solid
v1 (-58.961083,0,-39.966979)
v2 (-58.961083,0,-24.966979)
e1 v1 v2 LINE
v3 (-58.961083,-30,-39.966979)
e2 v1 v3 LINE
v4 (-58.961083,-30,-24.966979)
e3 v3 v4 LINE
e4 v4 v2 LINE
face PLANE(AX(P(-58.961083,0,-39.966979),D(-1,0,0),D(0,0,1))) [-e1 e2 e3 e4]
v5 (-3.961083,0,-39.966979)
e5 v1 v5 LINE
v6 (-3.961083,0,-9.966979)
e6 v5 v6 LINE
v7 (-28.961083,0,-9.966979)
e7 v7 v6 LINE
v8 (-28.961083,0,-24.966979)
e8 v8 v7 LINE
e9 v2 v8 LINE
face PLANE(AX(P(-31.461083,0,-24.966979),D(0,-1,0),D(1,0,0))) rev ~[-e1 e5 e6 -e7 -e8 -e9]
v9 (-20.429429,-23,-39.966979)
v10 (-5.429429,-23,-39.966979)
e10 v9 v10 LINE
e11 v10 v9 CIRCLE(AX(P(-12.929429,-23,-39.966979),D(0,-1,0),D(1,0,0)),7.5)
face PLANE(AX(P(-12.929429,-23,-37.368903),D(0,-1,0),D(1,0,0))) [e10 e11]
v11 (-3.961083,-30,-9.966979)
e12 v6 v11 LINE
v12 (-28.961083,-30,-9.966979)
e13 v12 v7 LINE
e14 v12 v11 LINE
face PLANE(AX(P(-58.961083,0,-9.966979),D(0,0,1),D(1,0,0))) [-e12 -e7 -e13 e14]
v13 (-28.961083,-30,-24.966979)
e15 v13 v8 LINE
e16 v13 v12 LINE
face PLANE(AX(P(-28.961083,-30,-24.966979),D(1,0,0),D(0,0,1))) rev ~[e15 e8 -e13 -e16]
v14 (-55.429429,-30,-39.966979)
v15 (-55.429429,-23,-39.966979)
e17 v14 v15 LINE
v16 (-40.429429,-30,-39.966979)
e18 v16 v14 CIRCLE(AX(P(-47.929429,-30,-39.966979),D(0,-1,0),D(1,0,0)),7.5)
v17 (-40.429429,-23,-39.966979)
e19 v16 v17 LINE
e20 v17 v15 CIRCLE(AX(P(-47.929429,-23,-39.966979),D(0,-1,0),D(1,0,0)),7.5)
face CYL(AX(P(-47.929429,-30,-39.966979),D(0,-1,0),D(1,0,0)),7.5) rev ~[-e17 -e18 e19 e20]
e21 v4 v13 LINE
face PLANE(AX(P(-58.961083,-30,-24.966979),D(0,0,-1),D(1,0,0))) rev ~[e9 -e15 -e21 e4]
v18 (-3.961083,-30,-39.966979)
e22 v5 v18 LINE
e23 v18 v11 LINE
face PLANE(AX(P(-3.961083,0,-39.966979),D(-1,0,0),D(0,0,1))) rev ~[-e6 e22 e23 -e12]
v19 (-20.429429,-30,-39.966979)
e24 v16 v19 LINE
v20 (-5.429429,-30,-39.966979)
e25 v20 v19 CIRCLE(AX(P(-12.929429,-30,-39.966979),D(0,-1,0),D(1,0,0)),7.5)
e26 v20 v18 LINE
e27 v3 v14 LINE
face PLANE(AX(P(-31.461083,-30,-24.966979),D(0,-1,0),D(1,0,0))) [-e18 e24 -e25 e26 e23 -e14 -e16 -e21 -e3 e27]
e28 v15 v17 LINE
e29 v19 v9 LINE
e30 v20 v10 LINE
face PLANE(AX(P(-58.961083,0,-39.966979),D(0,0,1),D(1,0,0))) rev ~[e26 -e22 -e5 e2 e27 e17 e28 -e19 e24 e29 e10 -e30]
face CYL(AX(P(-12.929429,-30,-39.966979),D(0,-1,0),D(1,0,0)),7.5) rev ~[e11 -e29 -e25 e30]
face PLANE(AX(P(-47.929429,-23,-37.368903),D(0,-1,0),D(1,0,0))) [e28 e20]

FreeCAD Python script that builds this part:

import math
import FreeCAD as App
import Part
import Sketcher
from FreeCAD import Vector


def add_polygon(sketch, points):
    """Adds a closed chain of lines whose ends are joined by coincident constraints."""
    first, n = sketch.GeometryCount, len(points)
    for a, b in zip(points, points[1:] + points[:1]):
        sketch.addGeometry(Part.LineSegment(App.Vector(*a, 0), App.Vector(*b, 0)), False)
    for i in range(n):
        sketch.addConstraint(Sketcher.Constraint("Coincident", first + i, 2, first + (i + 1) % n, 1))

doc = App.newDocument("Part")
body = doc.addObject("PartDesign::Body", "Body")

sketch1 = body.newObject("Sketcher::SketchObject", "Sketch")
sketch1.AttachmentSupport = (doc.getObject("XZ_Plane"), [""])
sketch1.MapMode = "FlatFace"
add_polygon(sketch1, [(-59, -10), (-59, -40), (-4, -40), (-4, -10)])
sketch1.addConstraint([
    Sketcher.Constraint("Vertical", 0),
    Sketcher.Constraint("Horizontal", 1),
    Sketcher.Constraint("Vertical", 2),
    Sketcher.Constraint("Horizontal", 3),
    Sketcher.Constraint("DistanceX", 1, 1, 1, 2, 55.0),
    Sketcher.Constraint("DistanceY", 0, 2, 0, 1, 30.0),
    Sketcher.Constraint("DistanceY", 0, 2, -1, 1, 39.966979),
    Sketcher.Constraint("DistanceX", 0, 2, -1, 1, 58.961083),
])
pad1 = body.newObject("PartDesign::Pad", "Pad")
pad1.Profile = sketch1
pad1.Length = 30

sketch2 = body.newObject("Sketcher::SketchObject", "Sketch001")
sketch2.AttachmentSupport = (doc.getObject("XZ_Plane"), [""])
sketch2.MapMode = "FlatFace"
sketch2.AttachmentOffset = App.Placement(Vector(0, 0, 30), App.Rotation())
add_polygon(sketch2, [(-59, -10), (-59, -25), (-29, -25), (-29, -10)])
sketch2.addConstraint([
    Sketcher.Constraint("Vertical", 0),
    Sketcher.Constraint("Horizontal", 1),
    Sketcher.Constraint("Vertical", 2),
    Sketcher.Constraint("Horizontal", 3),
    Sketcher.Constraint("DistanceX", 1, 1, 1, 2, 30.0),
    Sketcher.Constraint("DistanceY", 0, 2, 0, 1, 15.0),
    Sketcher.Constraint("DistanceY", 0, 2, -1, 1, 24.966979),
    Sketcher.Constraint("DistanceX", 0, 2, -1, 1, 58.961083),
])
pocket1 = body.newObject("PartDesign::Pocket", "Pocket")
pocket1.Profile = sketch2
pocket1.Type = "ThroughAll"

sketch3 = body.newObject("Sketcher::SketchObject", "Sketch002")
sketch3.AttachmentSupport = (doc.getObject("XZ_Plane"), [""])
sketch3.MapMode = "FlatFace"
sketch3.AttachmentOffset = App.Placement(Vector(0, 0, 30), App.Rotation())
sketch3.addGeometry([
    Part.LineSegment(Vector(-55, -40, 0), Vector(-40, -40, 0)),
    Part.ArcOfCircle(Part.Circle(Vector(-48, -40, 0), Vector(0, 0, 1), 8), math.radians(0), math.radians(180)),
    Part.ArcOfCircle(Part.Circle(Vector(-13, -40, 0), Vector(0, 0, 1), 8), math.radians(0), math.radians(180)),
    Part.LineSegment(Vector(-20, -40, 0), Vector(-5, -40, 0)),
], False)
sketch3.addConstraint([
    Sketcher.Constraint("Coincident", 0, 1, 1, 2),
    Sketcher.Constraint("Coincident", 1, 1, 0, 2),
    Sketcher.Constraint("Coincident", 2, 1, 3, 2),
    Sketcher.Constraint("Coincident", 3, 1, 2, 2),
    Sketcher.Constraint("Horizontal", 0),
    Sketcher.Constraint("Horizontal", 3),
    Sketcher.Constraint("Equal", 1, 2),
    Sketcher.Constraint("Horizontal", 1, 3, 2, 3),
    Sketcher.Constraint("Horizontal", 2, 3, 0, 1),
    Sketcher.Constraint("Horizontal", 1, 1, 2, 1),
    Sketcher.Constraint("Radius", 1, 7.5),
    Sketcher.Constraint("DistanceX", 1, 3, 2, 3, 35.0),
    Sketcher.Constraint("DistanceX", 1, 3, -1, 1, 47.929429),
    Sketcher.Constraint("DistanceY", 1, 3, -1, 1, 39.966979),
])
pocket2 = body.newObject("PartDesign::Pocket", "Pocket001")
pocket2.Profile = sketch3
pocket2.Length = 7

doc.recompute()
